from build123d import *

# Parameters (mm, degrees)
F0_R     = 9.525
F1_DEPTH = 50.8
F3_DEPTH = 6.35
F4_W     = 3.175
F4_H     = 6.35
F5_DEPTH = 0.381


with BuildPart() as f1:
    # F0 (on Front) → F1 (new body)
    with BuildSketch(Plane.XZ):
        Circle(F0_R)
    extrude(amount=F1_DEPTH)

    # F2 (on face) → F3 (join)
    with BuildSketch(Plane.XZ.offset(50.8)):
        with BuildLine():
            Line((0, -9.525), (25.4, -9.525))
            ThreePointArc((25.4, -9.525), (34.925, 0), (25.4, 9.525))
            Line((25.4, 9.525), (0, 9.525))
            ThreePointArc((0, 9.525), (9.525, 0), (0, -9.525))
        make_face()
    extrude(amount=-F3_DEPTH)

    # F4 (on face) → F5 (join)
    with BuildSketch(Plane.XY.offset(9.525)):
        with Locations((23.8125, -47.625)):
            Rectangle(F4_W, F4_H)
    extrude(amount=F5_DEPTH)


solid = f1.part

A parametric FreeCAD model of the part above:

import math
import FreeCAD as App
import Part
import Sketcher
Q = App.Units.Quantity

doc = App.newDocument("Part")
body = doc.addObject("PartDesign::Body", "Body")

sketch1 = doc.addObject("Sketcher::SketchObject", "Sketch")
body.addObject(sketch1)
sketch1.AttachmentSupport = (doc.XZ_Plane, [""])
sketch1.MapMode = "FlatFace"
sketch1.addGeometry(Part.Circle(App.Vector(0, 0, 0), App.Vector(0, 0, 1), 10), False)
sketch1.addConstraint([
    Sketcher.Constraint("Coincident", 0, 3, -1, 1),
    Sketcher.Constraint("Diameter", 0, Q("0.75 in")),
])
pad1 = doc.addObject("PartDesign::Pad", "Pad")
body.addObject(pad1)
pad1.Profile = sketch1
pad1.Length = Q("2 in")

sketch2 = doc.addObject("Sketcher::SketchObject", "Sketch001")
body.addObject(sketch2)
sketch2.AttachmentSupport = (doc.XZ_Plane, [""])
sketch2.MapMode = "FlatFace"
sketch2.AttachmentOffset = App.Placement(App.Vector(0, 0, 2 * 25.4), App.Rotation())
sketch2.addGeometry([
    Part.LineSegment(App.Vector(0, -10, 0), App.Vector(25, -10, 0)),
    Part.ArcOfCircle(Part.Circle(App.Vector(25, 0, 0), App.Vector(0, 0, 1), 10), math.radians(-90), math.radians(90)),
    Part.LineSegment(App.Vector(25, 10, 0), App.Vector(0, 10, 0)),
    Part.ArcOfCircle(Part.Circle(App.Vector(0, 0, 0), App.Vector(0, 0, 1), 10), math.radians(-90), math.radians(90)),
], False)
sketch2.addConstraint([
    Sketcher.Constraint("Tangent", 0, 2, 1, 1),
    Sketcher.Constraint("Tangent", 1, 2, 2, 1),
    Sketcher.Constraint("Tangent", 2, 2, 3, 2),
    Sketcher.Constraint("Tangent", 3, 1, 0, 1),
    Sketcher.Constraint("Horizontal", 0),
    Sketcher.Constraint("Horizontal", 2),
    Sketcher.Constraint("Coincident", 3, 3, -1, 1),
    Sketcher.Constraint("DistanceX", 0, 1, 0, 2, Q("1 in")),
    Sketcher.Constraint("Radius", 1, Q("0.375 in")),
])
pad2 = doc.addObject("PartDesign::Pad", "Pad001")
body.addObject(pad2)
pad2.Profile = sketch2
pad2.Length = Q("0.25 in")
pad2.Reversed = True

sketch3 = doc.addObject("Sketcher::SketchObject", "Sketch002")
body.addObject(sketch3)
sketch3.AttachmentSupport = (doc.XY_Plane, [""])
sketch3.MapMode = "FlatFace"
sketch3.AttachmentOffset = App.Placement(App.Vector(0, 0, 0.375 * 25.4), App.Rotation())
sketch3.addGeometry([
    Part.LineSegment(App.Vector(22.2, -44.5, 0), App.Vector(22.2, -50.8, 0)),
    Part.LineSegment(App.Vector(22.2, -50.8, 0), App.Vector(25.4, -50.8, 0)),
    Part.LineSegment(App.Vector(25.4, -50.8, 0), App.Vector(25.4, -44.5, 0)),
    Part.LineSegment(App.Vector(25.4, -44.5, 0), App.Vector(22.2, -44.5, 0)),
], False)
sketch3.addConstraint([
    Sketcher.Constraint("Coincident", 0, 2, 1, 1),
    Sketcher.Constraint("Coincident", 1, 2, 2, 1),
    Sketcher.Constraint("Coincident", 2, 2, 3, 1),
    Sketcher.Constraint("Coincident", 3, 2, 0, 1),
    Sketcher.Constraint("Vertical", 0),
    Sketcher.Constraint("Horizontal", 1),
    Sketcher.Constraint("Vertical", 2),
    Sketcher.Constraint("Horizontal", 3),
    Sketcher.Constraint("DistanceY", 0, 2, -1, 1, Q("2 in")),
    Sketcher.Constraint("DistanceX", -1, 1, 1, 2, Q("1 in")),
    Sketcher.Constraint("DistanceY", 0, 2, 0, 1, Q("0.25 in")),
    Sketcher.Constraint("DistanceX", 1, 1, 1, 2, Q("0.125 in")),
])
pad3 = doc.addObject("PartDesign::Pad", "Pad002")
body.addObject(pad3)
pad3.Profile = sketch3
pad3.Length = Q("0.015 in")

doc.recompute()
